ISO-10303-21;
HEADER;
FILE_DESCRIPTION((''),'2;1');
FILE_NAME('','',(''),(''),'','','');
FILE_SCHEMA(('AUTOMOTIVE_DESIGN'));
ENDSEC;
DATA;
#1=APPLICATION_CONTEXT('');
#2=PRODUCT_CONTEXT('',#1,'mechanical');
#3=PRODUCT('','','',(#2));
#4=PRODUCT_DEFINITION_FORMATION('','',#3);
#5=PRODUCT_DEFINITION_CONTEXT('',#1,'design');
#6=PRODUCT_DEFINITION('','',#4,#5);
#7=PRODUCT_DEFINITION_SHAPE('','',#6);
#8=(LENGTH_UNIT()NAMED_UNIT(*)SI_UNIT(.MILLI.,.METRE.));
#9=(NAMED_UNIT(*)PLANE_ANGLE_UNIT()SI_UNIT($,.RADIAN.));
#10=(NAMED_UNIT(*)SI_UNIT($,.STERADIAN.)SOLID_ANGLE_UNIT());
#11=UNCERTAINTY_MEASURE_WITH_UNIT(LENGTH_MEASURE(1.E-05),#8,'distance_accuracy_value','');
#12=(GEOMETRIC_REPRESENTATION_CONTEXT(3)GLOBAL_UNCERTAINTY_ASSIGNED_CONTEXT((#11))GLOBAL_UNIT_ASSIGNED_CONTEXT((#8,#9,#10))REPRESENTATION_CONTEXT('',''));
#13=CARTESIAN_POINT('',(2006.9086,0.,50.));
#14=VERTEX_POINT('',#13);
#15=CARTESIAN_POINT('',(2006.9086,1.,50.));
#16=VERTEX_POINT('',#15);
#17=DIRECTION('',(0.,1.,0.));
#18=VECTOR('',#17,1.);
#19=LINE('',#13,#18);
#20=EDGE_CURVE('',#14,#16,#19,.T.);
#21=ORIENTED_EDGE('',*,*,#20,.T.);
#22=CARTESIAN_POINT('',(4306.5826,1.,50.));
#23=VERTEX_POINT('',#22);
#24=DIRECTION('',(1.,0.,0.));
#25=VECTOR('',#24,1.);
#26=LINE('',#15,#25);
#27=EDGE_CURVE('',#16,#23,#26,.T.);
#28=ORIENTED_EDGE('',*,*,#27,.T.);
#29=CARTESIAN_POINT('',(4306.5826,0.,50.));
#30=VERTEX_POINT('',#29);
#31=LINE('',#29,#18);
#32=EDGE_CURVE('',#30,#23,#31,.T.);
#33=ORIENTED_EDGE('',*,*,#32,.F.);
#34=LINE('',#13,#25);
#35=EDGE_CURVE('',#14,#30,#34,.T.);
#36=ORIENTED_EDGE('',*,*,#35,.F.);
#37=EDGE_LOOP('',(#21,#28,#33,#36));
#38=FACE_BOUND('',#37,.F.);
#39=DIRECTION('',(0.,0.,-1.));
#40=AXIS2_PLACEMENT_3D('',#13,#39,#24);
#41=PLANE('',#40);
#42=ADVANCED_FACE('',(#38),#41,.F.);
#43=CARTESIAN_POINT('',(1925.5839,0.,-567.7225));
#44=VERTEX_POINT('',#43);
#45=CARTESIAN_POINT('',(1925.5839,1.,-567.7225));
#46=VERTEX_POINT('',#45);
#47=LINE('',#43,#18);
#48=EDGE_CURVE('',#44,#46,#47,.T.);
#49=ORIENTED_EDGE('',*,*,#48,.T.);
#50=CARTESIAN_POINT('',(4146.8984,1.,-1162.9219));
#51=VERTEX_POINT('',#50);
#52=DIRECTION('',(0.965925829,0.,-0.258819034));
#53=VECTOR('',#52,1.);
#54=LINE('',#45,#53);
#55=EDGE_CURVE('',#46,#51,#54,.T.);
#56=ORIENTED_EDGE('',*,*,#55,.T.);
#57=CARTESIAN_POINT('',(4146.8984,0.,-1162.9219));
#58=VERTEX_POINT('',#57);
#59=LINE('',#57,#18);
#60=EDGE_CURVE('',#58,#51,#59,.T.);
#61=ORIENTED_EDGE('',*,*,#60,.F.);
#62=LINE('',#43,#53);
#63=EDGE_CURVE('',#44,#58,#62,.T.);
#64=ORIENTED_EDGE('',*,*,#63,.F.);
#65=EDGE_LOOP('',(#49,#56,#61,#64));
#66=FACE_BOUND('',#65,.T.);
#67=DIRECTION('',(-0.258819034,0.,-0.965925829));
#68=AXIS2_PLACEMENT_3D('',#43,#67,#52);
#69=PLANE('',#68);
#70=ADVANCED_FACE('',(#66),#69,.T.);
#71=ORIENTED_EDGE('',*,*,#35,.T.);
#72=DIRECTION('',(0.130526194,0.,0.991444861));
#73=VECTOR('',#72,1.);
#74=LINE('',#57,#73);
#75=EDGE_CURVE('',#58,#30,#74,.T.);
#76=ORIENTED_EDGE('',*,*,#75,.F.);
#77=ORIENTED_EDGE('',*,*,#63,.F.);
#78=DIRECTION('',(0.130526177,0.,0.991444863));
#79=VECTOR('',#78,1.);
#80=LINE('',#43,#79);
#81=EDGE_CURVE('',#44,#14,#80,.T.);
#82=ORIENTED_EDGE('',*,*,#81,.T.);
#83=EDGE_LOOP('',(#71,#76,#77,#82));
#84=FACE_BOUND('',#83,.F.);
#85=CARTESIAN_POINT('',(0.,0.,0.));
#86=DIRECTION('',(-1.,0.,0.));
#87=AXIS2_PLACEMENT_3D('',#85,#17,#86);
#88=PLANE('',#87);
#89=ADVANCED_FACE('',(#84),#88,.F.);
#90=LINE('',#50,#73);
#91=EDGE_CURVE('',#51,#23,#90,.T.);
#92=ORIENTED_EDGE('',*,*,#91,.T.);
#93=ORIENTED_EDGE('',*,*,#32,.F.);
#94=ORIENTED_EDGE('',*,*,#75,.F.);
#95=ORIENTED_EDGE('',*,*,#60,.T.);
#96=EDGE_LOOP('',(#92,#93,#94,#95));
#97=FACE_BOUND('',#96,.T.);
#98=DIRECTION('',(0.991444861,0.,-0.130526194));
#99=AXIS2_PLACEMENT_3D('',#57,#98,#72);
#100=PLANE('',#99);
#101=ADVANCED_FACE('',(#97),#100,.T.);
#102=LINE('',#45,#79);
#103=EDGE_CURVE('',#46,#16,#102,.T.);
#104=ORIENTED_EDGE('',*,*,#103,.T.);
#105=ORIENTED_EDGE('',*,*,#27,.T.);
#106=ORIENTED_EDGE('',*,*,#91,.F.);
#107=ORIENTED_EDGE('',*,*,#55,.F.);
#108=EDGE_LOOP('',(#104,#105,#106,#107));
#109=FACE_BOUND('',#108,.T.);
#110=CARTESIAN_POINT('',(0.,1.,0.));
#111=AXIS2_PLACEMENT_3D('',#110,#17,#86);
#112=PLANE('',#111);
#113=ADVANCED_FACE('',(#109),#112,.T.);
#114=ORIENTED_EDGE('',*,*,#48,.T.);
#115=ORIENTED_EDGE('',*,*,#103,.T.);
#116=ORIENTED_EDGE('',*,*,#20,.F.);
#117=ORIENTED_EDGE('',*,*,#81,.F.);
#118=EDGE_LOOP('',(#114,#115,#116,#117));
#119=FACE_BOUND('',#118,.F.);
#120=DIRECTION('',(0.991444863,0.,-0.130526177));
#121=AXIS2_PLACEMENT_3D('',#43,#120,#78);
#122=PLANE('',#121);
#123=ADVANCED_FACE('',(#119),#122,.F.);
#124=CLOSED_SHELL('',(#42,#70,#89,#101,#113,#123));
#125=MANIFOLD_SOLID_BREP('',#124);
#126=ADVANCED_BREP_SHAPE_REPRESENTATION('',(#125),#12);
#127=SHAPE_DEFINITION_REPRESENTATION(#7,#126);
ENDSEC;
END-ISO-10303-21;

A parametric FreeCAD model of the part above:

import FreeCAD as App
import Part
import Sketcher

V = App.Vector
Q = App.Units.Quantity

doc = App.newDocument("Part")
params = doc.addObject("Spreadsheet::Sheet", "Params")
for row, (alias, value) in enumerate([
    ("pad1_length", "1 mm"),
], start=1):
    params.set(f"A{row}", alias)
    params.set(f"B{row}", "=" + value)
    params.setAlias(f"B{row}", alias)

body = doc.addObject("PartDesign::Body", "Body")

# Sketch on XZ plane
sketch1 = doc.addObject("Sketcher::SketchObject", "Sketch")
body.addObject(sketch1)
sketch1.AttachmentSupport = (doc.XZ_Plane, [""])
sketch1.MapMode = "FlatFace"
sketch1.addGeometry(Part.LineSegment(V(1926, -568, 0), V(2007, 50, 0)), False)
sketch1.addGeometry(Part.LineSegment(V(2007, 50, 0), V(4307, 50, 0)), False)
sketch1.addGeometry(Part.LineSegment(V(4307, 50, 0), V(4147, -1163, 0)), False)
sketch1.addGeometry(Part.LineSegment(V(4147, -1163, 0), V(1926, -568, 0)), False)
sketch1.addConstraint(Sketcher.Constraint("Coincident", 0, 2, 1, 1))
sketch1.addConstraint(Sketcher.Constraint("Coincident", 1, 2, 2, 1))
sketch1.addConstraint(Sketcher.Constraint("Coincident", 2, 2, 3, 1))
sketch1.addConstraint(Sketcher.Constraint("Coincident", 3, 2, 0, 1))
sketch1.addConstraint(Sketcher.Constraint("Horizontal", 1))
sketch1.addConstraint(Sketcher.Constraint("Parallel", 0, 2))
sketch1.addConstraint(Sketcher.Constraint("Angle", 3, Q("165 deg")))
sketch1.addConstraint(Sketcher.Constraint("DistanceY", -1, 1, 0, 2, Q("50 mm")))
sketch1.addConstraint(Sketcher.Constraint("Angle", 0, Q("82.5 deg")))
sketch1.addConstraint(Sketcher.Constraint("DistanceX", 1, 1, 1, 2, Q("2299.674 mm")))
sketch1.addConstraint(Sketcher.Constraint("DistanceY", 2, 2, -1, 1, Q("1162.922 mm")))
sketch1.addConstraint(Sketcher.Constraint("DistanceX", -1, 1, 3, 2, Q("1925.584 mm")))
pad1 = doc.addObject("PartDesign::Pad", "Pad")
body.addObject(pad1)
pad1.Profile = sketch1
pad1.setExpression("Length", "Params.pad1_length")
pad1.Reversed = True

doc.recompute()
